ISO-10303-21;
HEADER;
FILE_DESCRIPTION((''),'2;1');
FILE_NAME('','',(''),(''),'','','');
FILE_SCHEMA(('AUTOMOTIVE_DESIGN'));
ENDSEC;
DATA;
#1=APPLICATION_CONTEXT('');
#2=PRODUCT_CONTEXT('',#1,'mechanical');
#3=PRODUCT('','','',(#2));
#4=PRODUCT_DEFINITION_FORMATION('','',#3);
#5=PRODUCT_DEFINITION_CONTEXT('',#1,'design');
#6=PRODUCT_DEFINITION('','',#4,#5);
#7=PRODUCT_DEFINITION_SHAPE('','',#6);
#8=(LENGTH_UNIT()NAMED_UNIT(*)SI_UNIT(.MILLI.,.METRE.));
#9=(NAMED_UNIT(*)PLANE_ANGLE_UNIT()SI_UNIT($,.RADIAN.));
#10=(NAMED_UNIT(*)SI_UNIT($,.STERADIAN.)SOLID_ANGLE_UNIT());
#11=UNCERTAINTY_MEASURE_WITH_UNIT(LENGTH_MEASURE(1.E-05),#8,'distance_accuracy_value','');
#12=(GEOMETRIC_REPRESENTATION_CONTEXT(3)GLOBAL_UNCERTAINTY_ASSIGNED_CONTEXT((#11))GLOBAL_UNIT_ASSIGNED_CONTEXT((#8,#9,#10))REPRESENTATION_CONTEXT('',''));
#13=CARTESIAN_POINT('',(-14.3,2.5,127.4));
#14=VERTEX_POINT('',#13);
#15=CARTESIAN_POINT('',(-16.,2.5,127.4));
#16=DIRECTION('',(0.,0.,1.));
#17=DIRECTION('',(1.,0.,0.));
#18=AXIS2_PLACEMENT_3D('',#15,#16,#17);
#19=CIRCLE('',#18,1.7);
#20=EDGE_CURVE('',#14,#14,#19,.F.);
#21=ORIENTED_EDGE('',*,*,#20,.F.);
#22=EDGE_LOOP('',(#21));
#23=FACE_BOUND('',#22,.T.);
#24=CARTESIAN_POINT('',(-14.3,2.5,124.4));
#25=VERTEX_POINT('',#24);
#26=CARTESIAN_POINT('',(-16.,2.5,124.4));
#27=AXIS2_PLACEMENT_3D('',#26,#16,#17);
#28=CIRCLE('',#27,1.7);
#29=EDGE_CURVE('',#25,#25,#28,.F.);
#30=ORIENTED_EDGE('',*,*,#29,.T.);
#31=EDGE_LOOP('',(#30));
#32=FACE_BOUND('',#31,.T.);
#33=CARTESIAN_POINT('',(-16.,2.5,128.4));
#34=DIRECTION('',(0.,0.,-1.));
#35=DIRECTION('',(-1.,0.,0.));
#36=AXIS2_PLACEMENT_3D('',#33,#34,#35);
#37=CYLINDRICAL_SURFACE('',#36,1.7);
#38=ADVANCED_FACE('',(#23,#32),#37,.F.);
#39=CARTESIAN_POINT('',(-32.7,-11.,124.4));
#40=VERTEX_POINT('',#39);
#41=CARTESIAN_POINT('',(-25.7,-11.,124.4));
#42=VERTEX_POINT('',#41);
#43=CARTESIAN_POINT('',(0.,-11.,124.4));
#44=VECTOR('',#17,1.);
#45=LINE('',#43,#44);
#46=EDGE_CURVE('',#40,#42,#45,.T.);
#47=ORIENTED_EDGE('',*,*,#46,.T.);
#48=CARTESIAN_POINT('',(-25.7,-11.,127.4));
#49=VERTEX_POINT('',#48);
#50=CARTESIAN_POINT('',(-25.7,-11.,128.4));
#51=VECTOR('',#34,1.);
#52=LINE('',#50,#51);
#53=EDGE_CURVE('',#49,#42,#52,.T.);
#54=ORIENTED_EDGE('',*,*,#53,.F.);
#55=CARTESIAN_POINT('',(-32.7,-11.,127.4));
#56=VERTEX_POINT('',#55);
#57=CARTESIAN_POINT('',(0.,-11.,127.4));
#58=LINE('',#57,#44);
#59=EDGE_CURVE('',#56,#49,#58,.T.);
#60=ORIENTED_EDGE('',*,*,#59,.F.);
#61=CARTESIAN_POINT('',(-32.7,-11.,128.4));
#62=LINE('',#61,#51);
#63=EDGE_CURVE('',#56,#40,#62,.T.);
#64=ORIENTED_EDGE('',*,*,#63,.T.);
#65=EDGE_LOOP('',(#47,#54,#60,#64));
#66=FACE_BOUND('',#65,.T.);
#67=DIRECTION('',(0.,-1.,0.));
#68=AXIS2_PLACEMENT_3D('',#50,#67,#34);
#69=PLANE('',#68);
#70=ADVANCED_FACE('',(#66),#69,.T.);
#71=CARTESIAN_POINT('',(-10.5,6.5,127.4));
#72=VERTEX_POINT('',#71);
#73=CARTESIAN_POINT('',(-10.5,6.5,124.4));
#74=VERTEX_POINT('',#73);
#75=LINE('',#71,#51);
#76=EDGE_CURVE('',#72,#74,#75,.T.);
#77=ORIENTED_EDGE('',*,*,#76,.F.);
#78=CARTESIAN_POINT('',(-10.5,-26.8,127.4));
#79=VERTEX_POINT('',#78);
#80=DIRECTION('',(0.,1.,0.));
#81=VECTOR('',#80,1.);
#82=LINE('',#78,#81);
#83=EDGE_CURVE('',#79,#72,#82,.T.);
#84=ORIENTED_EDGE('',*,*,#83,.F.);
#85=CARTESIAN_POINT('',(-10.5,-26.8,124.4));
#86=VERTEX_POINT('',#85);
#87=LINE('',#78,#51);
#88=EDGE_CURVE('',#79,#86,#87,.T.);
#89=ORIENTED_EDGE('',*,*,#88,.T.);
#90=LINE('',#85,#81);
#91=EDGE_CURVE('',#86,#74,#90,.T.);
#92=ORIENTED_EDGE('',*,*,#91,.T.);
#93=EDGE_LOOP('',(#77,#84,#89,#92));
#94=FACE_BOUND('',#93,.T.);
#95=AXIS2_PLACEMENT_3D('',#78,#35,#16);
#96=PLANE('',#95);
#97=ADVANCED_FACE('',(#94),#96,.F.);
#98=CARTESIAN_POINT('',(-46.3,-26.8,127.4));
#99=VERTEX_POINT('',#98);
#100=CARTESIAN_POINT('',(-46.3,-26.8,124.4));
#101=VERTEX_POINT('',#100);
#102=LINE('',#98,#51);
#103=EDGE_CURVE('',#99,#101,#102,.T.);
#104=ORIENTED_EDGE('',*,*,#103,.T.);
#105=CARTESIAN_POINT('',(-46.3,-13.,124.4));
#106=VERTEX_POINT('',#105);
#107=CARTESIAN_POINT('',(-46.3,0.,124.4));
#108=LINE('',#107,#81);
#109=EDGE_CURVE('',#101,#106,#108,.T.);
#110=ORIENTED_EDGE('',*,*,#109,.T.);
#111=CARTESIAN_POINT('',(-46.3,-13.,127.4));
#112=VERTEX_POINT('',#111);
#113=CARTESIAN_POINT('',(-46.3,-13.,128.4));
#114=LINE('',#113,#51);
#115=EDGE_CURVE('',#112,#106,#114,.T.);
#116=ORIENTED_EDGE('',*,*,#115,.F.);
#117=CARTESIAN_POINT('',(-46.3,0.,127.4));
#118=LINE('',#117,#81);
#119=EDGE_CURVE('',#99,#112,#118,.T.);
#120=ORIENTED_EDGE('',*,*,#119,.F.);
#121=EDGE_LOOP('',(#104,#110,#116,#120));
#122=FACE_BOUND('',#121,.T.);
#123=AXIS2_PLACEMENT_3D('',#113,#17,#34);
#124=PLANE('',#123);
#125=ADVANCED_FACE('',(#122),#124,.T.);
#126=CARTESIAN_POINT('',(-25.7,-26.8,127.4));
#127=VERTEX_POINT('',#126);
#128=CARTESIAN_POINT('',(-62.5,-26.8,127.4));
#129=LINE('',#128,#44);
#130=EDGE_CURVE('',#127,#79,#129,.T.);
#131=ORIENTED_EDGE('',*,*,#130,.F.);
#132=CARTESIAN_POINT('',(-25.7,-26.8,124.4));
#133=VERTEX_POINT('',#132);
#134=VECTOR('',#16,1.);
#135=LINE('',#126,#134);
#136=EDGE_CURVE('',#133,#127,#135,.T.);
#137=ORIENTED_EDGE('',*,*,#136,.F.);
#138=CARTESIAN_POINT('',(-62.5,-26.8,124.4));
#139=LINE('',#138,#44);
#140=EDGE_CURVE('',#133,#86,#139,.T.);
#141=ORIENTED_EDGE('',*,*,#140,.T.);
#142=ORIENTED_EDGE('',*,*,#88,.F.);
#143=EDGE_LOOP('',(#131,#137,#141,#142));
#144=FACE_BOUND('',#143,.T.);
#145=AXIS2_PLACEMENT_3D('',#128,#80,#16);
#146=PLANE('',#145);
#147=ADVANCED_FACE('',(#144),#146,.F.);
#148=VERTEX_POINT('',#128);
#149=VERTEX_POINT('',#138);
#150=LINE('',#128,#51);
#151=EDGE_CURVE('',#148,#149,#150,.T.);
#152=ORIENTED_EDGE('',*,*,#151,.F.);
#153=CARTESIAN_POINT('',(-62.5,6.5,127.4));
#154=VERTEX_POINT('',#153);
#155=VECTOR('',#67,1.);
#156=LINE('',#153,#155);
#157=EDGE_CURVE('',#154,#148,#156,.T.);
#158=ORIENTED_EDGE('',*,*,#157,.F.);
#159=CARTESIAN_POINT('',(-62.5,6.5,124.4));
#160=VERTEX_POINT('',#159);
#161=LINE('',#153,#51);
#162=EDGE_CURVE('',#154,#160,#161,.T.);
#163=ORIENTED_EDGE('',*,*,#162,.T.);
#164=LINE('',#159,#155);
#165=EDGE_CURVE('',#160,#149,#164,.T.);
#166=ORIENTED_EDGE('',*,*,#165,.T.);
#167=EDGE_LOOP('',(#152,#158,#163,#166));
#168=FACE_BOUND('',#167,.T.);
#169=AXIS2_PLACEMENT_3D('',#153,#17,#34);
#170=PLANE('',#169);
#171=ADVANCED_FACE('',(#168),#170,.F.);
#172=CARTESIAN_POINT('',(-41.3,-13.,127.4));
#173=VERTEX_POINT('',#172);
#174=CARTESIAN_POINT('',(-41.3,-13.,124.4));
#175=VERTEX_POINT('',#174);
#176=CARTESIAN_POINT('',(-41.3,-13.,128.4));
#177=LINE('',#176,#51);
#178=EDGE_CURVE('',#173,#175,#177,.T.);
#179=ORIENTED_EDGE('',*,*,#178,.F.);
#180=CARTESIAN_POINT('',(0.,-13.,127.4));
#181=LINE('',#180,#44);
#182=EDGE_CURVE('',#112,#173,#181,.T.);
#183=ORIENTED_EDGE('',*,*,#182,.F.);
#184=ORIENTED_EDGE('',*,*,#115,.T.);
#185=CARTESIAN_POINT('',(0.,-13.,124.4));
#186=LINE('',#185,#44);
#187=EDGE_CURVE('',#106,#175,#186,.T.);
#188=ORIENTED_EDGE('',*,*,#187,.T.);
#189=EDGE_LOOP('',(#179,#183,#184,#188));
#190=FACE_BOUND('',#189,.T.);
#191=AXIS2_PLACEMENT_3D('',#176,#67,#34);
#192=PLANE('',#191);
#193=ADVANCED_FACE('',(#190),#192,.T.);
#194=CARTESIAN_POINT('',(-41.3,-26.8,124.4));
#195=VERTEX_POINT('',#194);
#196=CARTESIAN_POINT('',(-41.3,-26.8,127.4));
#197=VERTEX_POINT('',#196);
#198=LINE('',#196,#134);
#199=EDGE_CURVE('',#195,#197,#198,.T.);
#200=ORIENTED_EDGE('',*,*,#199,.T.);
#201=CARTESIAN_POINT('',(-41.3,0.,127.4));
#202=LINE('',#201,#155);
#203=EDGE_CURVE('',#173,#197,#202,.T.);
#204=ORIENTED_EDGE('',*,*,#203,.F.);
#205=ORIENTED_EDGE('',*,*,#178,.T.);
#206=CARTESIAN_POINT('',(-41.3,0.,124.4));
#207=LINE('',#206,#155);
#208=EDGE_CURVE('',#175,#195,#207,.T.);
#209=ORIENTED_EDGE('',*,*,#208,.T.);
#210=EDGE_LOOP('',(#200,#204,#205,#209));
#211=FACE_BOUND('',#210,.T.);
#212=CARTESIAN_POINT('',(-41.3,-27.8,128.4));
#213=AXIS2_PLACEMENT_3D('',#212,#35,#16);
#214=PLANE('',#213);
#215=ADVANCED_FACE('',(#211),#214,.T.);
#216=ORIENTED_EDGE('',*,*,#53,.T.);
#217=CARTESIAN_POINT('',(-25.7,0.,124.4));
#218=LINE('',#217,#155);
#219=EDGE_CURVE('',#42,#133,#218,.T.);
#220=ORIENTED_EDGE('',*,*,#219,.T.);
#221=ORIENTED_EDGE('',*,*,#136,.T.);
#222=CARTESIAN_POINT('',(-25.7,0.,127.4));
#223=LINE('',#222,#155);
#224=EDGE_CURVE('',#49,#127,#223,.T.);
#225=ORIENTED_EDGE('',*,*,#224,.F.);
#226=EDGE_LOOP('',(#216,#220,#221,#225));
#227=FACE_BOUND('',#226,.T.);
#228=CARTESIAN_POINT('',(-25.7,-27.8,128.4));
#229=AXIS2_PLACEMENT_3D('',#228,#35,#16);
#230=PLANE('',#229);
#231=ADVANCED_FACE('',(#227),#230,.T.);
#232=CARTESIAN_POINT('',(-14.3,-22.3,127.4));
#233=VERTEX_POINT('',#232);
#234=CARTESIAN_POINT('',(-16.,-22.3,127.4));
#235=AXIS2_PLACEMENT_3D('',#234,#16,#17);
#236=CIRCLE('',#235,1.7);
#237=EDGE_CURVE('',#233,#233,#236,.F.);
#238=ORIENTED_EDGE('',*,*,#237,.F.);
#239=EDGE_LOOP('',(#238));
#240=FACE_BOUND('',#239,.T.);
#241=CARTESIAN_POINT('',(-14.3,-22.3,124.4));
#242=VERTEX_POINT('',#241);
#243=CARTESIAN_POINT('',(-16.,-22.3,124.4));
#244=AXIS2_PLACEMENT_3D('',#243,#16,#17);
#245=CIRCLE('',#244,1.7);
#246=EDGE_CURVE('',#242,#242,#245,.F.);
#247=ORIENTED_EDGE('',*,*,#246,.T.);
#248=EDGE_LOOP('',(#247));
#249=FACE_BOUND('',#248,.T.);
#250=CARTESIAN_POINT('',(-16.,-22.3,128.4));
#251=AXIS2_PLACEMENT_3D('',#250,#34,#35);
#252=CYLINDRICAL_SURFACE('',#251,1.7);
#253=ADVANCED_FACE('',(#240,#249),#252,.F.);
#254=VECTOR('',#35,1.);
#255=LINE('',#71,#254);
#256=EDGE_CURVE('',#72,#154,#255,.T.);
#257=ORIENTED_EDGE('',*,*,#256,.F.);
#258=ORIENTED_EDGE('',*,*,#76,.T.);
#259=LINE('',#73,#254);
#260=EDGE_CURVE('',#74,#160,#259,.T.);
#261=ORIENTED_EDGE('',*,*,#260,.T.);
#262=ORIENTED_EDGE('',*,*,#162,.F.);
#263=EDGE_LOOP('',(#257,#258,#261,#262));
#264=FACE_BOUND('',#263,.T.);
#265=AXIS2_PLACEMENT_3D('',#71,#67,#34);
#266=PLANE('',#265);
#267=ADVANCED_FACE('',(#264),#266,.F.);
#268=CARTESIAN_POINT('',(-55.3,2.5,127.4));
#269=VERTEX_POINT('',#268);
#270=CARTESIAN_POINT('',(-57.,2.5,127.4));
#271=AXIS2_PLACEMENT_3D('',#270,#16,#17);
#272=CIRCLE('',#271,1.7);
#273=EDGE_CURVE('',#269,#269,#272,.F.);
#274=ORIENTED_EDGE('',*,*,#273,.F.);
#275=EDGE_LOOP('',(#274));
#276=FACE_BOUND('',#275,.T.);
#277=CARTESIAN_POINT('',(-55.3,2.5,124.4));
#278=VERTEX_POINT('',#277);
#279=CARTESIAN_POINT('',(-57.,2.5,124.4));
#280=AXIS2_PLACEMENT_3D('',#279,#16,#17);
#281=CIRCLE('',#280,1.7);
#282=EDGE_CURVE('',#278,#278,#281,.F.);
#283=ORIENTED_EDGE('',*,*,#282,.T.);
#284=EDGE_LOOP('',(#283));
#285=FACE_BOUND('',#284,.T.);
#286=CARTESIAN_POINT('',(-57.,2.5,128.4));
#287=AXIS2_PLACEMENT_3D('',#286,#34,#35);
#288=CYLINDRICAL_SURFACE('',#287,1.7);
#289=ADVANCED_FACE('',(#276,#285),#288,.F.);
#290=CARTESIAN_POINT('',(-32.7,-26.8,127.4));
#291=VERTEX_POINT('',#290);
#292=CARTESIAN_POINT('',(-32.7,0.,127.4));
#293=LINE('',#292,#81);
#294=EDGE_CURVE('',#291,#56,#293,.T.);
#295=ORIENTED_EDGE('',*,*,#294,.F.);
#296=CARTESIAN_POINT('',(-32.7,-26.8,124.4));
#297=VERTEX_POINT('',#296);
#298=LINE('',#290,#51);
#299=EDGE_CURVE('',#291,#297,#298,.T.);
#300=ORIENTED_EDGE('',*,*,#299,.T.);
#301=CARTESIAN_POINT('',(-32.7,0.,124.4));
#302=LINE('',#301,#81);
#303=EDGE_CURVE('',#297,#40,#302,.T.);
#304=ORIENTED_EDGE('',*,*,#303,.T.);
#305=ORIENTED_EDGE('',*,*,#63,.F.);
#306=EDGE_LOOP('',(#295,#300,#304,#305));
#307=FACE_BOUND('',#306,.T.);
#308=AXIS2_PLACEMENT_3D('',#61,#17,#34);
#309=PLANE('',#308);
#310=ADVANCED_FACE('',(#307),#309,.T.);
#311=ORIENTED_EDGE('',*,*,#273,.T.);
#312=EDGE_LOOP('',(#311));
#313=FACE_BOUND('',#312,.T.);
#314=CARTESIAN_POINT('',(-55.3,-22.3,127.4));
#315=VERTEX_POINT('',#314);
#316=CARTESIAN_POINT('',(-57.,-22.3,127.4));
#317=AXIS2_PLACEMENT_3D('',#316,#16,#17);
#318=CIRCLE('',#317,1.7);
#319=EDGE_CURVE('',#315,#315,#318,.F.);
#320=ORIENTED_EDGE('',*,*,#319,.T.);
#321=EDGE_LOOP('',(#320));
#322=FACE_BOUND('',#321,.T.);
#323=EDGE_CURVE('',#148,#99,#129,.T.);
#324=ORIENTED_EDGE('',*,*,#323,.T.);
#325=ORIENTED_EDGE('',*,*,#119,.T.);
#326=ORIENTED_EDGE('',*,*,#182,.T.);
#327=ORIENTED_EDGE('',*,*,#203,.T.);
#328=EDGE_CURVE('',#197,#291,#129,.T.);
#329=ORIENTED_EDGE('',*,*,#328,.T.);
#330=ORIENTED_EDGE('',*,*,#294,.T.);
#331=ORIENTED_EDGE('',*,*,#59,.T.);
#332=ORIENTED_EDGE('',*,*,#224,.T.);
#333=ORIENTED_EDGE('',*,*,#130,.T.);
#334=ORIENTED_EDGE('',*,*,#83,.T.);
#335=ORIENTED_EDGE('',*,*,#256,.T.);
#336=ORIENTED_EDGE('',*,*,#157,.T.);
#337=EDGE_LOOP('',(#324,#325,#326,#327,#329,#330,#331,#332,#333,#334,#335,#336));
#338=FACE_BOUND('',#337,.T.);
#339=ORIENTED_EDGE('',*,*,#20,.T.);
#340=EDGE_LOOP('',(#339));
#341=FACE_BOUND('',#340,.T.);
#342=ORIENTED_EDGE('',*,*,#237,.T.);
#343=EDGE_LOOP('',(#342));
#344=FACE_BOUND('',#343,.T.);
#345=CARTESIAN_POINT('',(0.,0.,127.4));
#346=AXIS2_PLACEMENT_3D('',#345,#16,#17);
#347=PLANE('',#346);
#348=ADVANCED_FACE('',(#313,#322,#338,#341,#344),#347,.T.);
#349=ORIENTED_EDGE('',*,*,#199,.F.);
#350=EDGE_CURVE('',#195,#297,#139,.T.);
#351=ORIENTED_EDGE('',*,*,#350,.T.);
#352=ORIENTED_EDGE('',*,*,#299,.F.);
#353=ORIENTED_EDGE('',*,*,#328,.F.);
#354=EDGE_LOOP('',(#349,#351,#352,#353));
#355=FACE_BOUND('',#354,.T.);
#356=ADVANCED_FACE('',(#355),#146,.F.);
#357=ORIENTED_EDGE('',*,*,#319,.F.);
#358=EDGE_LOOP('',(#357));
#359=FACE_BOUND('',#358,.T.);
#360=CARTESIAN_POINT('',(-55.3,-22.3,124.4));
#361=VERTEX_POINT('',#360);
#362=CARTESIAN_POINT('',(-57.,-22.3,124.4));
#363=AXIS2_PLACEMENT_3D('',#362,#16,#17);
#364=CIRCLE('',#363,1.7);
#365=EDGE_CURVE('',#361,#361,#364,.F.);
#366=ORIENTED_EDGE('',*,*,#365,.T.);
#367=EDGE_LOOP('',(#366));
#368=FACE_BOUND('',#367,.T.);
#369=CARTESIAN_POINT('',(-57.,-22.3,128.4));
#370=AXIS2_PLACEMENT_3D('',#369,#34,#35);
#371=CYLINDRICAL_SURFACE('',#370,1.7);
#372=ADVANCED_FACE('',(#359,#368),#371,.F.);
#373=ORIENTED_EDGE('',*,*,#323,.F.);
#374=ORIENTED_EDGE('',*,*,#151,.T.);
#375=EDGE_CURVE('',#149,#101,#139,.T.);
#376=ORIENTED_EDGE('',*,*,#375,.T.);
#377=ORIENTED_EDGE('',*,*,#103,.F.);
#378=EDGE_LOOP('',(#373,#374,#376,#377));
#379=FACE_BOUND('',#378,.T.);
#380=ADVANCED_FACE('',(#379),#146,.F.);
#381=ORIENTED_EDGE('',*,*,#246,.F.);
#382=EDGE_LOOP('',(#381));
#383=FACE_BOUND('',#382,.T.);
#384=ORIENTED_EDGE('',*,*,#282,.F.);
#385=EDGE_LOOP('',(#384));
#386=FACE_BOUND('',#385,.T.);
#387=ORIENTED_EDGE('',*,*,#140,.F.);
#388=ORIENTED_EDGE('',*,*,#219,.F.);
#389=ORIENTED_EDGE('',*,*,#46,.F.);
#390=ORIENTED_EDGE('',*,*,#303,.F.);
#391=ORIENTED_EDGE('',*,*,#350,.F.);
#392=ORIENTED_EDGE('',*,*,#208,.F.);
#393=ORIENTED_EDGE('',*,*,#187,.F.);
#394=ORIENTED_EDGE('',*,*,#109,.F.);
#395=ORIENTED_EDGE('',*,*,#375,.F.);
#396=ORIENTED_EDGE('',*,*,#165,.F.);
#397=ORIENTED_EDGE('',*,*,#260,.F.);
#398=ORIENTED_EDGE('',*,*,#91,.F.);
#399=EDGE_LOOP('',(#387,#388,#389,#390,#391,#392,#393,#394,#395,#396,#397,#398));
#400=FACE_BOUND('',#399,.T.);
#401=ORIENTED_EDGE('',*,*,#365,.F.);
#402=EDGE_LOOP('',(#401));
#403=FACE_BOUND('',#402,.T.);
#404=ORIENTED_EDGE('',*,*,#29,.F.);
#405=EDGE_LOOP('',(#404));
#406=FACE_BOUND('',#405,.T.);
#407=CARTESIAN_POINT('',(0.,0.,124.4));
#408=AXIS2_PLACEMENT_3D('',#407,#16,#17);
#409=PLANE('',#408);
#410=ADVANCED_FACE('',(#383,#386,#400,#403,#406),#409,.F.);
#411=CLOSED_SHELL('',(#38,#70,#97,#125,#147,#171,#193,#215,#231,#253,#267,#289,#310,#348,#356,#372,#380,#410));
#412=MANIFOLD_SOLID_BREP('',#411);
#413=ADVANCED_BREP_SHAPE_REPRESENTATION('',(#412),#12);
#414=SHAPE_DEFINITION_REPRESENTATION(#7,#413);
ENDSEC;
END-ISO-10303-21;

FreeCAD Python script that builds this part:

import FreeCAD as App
import Part
import Sketcher

V = App.Vector


def add_polygon(sketch, points):
    """Adds a closed chain of lines whose ends are joined by coincident constraints."""
    first, n = sketch.GeometryCount, len(points)
    for a, b in zip(points, points[1:] + points[:1]):
        sketch.addGeometry(Part.LineSegment(App.Vector(*a, 0), App.Vector(*b, 0)), False)
    for i in range(n):
        sketch.addConstraint(Sketcher.Constraint("Coincident", first + i, 2, first + (i + 1) % n, 1))

doc = App.newDocument("Part")
body = doc.addObject("PartDesign::Body", "Body")

# Sketch on XY plane
sketch1 = body.newObject("Sketcher::SketchObject", "Sketch")
sketch1.AttachmentSupport = (doc.getObject("XY_Plane"), [""])
sketch1.MapMode = "FlatFace"
sketch1.AttachmentOffset = App.Placement(V(0, 0, 124.4), App.Rotation())
add_polygon(sketch1, [(-62.5, 6.5), (-62.5, -26.8), (-10.5, -26.8), (-10.5, 6.5)])  # lines 0-3
sketch1.addConstraint(Sketcher.Constraint("Vertical", 0))
sketch1.addConstraint(Sketcher.Constraint("Horizontal", 1))
sketch1.addConstraint(Sketcher.Constraint("Vertical", 2))
sketch1.addConstraint(Sketcher.Constraint("Horizontal", 3))
sketch1.addConstraint(Sketcher.Constraint("DistanceX", 1, 1, 1, 2, 52.0))
sketch1.addConstraint(Sketcher.Constraint("DistanceY", 0, 2, 0, 1, 33.3))
sketch1.addConstraint(Sketcher.Constraint("DistanceX", 0, 2, -1, 1, 62.5))
sketch1.addConstraint(Sketcher.Constraint("DistanceY", 0, 2, -1, 1, 26.8))
pad1 = body.newObject("PartDesign::Pad", "Pad")
pad1.Profile = sketch1
pad1.Length = 3

# Sketch on XY plane
sketch2 = body.newObject("Sketcher::SketchObject", "Sketch001")
sketch2.AttachmentSupport = (doc.getObject("XY_Plane"), [""])
sketch2.MapMode = "FlatFace"
sketch2.AttachmentOffset = App.Placement(V(0, 0, 123.4), App.Rotation())
add_polygon(sketch2, [(-46.3, -13), (-46.3, -27.8), (-41.3, -27.8), (-41.3, -13)])  # lines 0-3
add_polygon(sketch2, [(-32.7, -11), (-32.7, -27.8), (-25.7, -27.8), (-25.7, -11)])  # lines 4-7
sketch2.addConstraint(Sketcher.Constraint("Vertical", 0))
sketch2.addConstraint(Sketcher.Constraint("Horizontal", 1))
sketch2.addConstraint(Sketcher.Constraint("Vertical", 2))
sketch2.addConstraint(Sketcher.Constraint("Horizontal", 3))
sketch2.addConstraint(Sketcher.Constraint("Vertical", 4))
sketch2.addConstraint(Sketcher.Constraint("Horizontal", 5))
sketch2.addConstraint(Sketcher.Constraint("Vertical", 6))
sketch2.addConstraint(Sketcher.Constraint("Horizontal", 7))
sketch2.addConstraint(Sketcher.Constraint("Horizontal", 1, 2, 4, 2))
sketch2.addConstraint(Sketcher.Constraint("DistanceX", 1, 1, 1, 2, 5.0))
sketch2.addConstraint(Sketcher.Constraint("DistanceX", 5, 1, 5, 2, 7.0))
sketch2.addConstraint(Sketcher.Constraint("DistanceY", 0, 2, 0, 1, 14.8))
sketch2.addConstraint(Sketcher.Constraint("DistanceY", 4, 2, 4, 1, 16.8))
sketch2.addConstraint(Sketcher.Constraint("DistanceY", 2, 2, -1, 1, 13.0))
sketch2.addConstraint(Sketcher.Constraint("DistanceX", 0, 2, -1, 1, 46.3))
sketch2.addConstraint(Sketcher.Constraint("DistanceX", 4, 2, -1, 1, 32.7))
pocket1 = body.newObject("PartDesign::Pocket", "Pocket")
pocket1.Profile = sketch2
pocket1.Length = 5
pocket1.Reversed = True

# Sketch on XY plane
sketch3 = body.newObject("Sketcher::SketchObject", "Sketch002")
sketch3.AttachmentSupport = (doc.getObject("XY_Plane"), [""])
sketch3.MapMode = "FlatFace"
sketch3.AttachmentOffset = App.Placement(V(0, 0, 123.4), App.Rotation())
sketch3.addGeometry(Part.Circle(V(-57, -22.3, 0), V(0, 0, 1), 1.7), False)
sketch3.addGeometry(Part.Circle(V(-57, 2.5, 0), V(0, 0, 1), 1.7), False)
sketch3.addGeometry(Part.Circle(V(-16, -22.3, 0), V(0, 0, 1), 1.7), False)
sketch3.addGeometry(Part.Circle(V(-16, 2.5, 0), V(0, 0, 1), 1.7), False)
sketch3.addConstraint(Sketcher.Constraint("Equal", 0, 1))
sketch3.addConstraint(Sketcher.Constraint("Equal", 1, 2))
sketch3.addConstraint(Sketcher.Constraint("Equal", 2, 3))
sketch3.addConstraint(Sketcher.Constraint("Horizontal", 0, 3, 2, 3))
sketch3.addConstraint(Sketcher.Constraint("Horizontal", 1, 3, 3, 3))
sketch3.addConstraint(Sketcher.Constraint("Vertical", 0, 3, 1, 3))
sketch3.addConstraint(Sketcher.Constraint("Vertical", 2, 3, 3, 3))
sketch3.addConstraint(Sketcher.Constraint("Diameter", 0, 3.4))
sketch3.addConstraint(Sketcher.Constraint("DistanceX", 0, 3, -1, 1, 57.0))
sketch3.addConstraint(Sketcher.Constraint("DistanceX", 2, 3, -1, 1, 16.0))
sketch3.addConstraint(Sketcher.Constraint("DistanceY", 0, 3, -1, 1, 22.3))
sketch3.addConstraint(Sketcher.Constraint("DistanceY", -1, 1, 1, 3, 2.5))
pocket2 = body.newObject("PartDesign::Pocket", "Pocket001")
pocket2.Profile = sketch3
pocket2.Length = 5
pocket2.Reversed = True

doc.recompute()
